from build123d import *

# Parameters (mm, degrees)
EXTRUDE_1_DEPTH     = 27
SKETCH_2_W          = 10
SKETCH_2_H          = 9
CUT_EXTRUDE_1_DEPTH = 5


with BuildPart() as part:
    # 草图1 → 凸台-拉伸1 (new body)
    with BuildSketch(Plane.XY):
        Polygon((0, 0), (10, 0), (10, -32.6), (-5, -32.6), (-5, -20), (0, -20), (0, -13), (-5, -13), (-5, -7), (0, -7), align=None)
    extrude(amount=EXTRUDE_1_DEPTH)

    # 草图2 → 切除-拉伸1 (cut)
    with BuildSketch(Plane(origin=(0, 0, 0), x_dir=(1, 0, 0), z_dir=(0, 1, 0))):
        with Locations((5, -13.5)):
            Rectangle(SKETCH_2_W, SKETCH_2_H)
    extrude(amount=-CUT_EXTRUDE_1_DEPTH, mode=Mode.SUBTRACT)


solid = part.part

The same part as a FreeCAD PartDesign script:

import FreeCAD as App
import Part
import Sketcher

doc = App.newDocument("Part")
body = doc.addObject("PartDesign::Body", "Body")

# Sketch on XY plane
sketch1 = body.newObject("Sketcher::SketchObject", "Sketch")
sketch1.AttachmentSupport = (doc.getObject("XY_Plane"), [""])
sketch1.MapMode = "FlatFace"
sketch1.addGeometry([
    Part.LineSegment(App.Vector(10, 0, 0), App.Vector(0, 0, 0)),  # 0
    Part.LineSegment(App.Vector(0, 0, 0), App.Vector(0, -7, 0)),  # 1
    Part.LineSegment(App.Vector(0, -7, 0), App.Vector(-5, -7, 0)),  # 2
    Part.LineSegment(App.Vector(-5, -7, 0), App.Vector(-5, -13, 0)),  # 3
    Part.LineSegment(App.Vector(-5, -13, 0), App.Vector(0, -13, 0)),  # 4
    Part.LineSegment(App.Vector(0, -13, 0), App.Vector(0, -20, 0)),  # 5
    Part.LineSegment(App.Vector(0, -20, 0), App.Vector(-5, -20, 0)),  # 6
    Part.LineSegment(App.Vector(-5, -20, 0), App.Vector(-5, -32.6, 0)),  # 7
    Part.LineSegment(App.Vector(-5, -32.6, 0), App.Vector(10, -32.6, 0)),  # 8
    Part.LineSegment(App.Vector(10, -32.6, 0), App.Vector(10, 0, 0)),  # 9
], False)
sketch1.addConstraint([
    Sketcher.Constraint("Coincident", 0, 2, 1, 1),
    Sketcher.Constraint("Coincident", 1, 2, 2, 1),
    Sketcher.Constraint("Coincident", 2, 2, 3, 1),
    Sketcher.Constraint("Coincident", 3, 2, 4, 1),
    Sketcher.Constraint("Coincident", 4, 2, 5, 1),
    Sketcher.Constraint("Coincident", 5, 2, 6, 1),
    Sketcher.Constraint("Coincident", 6, 2, 7, 1),
    Sketcher.Constraint("Coincident", 7, 2, 8, 1),
    Sketcher.Constraint("Coincident", 8, 2, 9, 1),
    Sketcher.Constraint("Coincident", 9, 2, 0, 1),
    Sketcher.Constraint("Horizontal", 0),
    Sketcher.Constraint("Vertical", 1),
    Sketcher.Constraint("Horizontal", 2),
    Sketcher.Constraint("Vertical", 3),
    Sketcher.Constraint("Horizontal", 4),
    Sketcher.Constraint("Vertical", 5),
    Sketcher.Constraint("Horizontal", 6),
    Sketcher.Constraint("Vertical", 7),
    Sketcher.Constraint("Horizontal", 8),
    Sketcher.Constraint("Vertical", 9),
    Sketcher.Constraint("Coincident", 0, 2, -1, 1),
    Sketcher.Constraint("PointOnObject", 4, 2, -2),
    Sketcher.Constraint("Vertical", 3, 2, 6, 2),
    Sketcher.Constraint("Equal", 1, 5),
    Sketcher.Constraint("DistanceX", 0, 2, 0, 1, 10.0),
    Sketcher.Constraint("DistanceX", 2, 2, 2, 1, 5.0),
    Sketcher.Constraint("DistanceY", 1, 2, 1, 1, 7.0),
    Sketcher.Constraint("DistanceY", 3, 2, 3, 1, 6.0),
    Sketcher.Constraint("DistanceY", 7, 2, 7, 1, 12.6),
])
pad1 = body.newObject("PartDesign::Pad", "Pad")
pad1.Profile = sketch1
pad1.Length = 27

# Sketch on XZ plane
sketch2 = body.newObject("Sketcher::SketchObject", "Sketch001")
sketch2.AttachmentSupport = (doc.getObject("XZ_Plane"), [""])
sketch2.MapMode = "FlatFace"
sketch2.addGeometry([
    Part.LineSegment(App.Vector(0, 9, 0), App.Vector(0, 18, 0)),
    Part.LineSegment(App.Vector(0, 18, 0), App.Vector(10, 18, 0)),
    Part.LineSegment(App.Vector(10, 18, 0), App.Vector(10, 9, 0)),
    Part.LineSegment(App.Vector(10, 9, 0), App.Vector(0, 9, 0)),
], False)
sketch2.addConstraint([
    Sketcher.Constraint("Coincident", 0, 2, 1, 1),
    Sketcher.Constraint("Coincident", 1, 2, 2, 1),
    Sketcher.Constraint("Coincident", 2, 2, 3, 1),
    Sketcher.Constraint("Coincident", 3, 2, 0, 1),
    Sketcher.Constraint("Vertical", 0),
    Sketcher.Constraint("Horizontal", 1),
    Sketcher.Constraint("Vertical", 2),
    Sketcher.Constraint("Horizontal", 3),
    Sketcher.Constraint("PointOnObject", 0, 2, -2),
    Sketcher.Constraint("DistanceX", 1, 1, 1, 2, 10.0),
    Sketcher.Constraint("DistanceY", 0, 1, 0, 2, 9.0),
    Sketcher.Constraint("DistanceY", -1, 1, 0, 2, 18.0),
])
pocket1 = body.newObject("PartDesign::Pocket", "Pocket")
pocket1.Profile = sketch2
pocket1.Length = 5
pocket1.Reversed = True

doc.recompute()
